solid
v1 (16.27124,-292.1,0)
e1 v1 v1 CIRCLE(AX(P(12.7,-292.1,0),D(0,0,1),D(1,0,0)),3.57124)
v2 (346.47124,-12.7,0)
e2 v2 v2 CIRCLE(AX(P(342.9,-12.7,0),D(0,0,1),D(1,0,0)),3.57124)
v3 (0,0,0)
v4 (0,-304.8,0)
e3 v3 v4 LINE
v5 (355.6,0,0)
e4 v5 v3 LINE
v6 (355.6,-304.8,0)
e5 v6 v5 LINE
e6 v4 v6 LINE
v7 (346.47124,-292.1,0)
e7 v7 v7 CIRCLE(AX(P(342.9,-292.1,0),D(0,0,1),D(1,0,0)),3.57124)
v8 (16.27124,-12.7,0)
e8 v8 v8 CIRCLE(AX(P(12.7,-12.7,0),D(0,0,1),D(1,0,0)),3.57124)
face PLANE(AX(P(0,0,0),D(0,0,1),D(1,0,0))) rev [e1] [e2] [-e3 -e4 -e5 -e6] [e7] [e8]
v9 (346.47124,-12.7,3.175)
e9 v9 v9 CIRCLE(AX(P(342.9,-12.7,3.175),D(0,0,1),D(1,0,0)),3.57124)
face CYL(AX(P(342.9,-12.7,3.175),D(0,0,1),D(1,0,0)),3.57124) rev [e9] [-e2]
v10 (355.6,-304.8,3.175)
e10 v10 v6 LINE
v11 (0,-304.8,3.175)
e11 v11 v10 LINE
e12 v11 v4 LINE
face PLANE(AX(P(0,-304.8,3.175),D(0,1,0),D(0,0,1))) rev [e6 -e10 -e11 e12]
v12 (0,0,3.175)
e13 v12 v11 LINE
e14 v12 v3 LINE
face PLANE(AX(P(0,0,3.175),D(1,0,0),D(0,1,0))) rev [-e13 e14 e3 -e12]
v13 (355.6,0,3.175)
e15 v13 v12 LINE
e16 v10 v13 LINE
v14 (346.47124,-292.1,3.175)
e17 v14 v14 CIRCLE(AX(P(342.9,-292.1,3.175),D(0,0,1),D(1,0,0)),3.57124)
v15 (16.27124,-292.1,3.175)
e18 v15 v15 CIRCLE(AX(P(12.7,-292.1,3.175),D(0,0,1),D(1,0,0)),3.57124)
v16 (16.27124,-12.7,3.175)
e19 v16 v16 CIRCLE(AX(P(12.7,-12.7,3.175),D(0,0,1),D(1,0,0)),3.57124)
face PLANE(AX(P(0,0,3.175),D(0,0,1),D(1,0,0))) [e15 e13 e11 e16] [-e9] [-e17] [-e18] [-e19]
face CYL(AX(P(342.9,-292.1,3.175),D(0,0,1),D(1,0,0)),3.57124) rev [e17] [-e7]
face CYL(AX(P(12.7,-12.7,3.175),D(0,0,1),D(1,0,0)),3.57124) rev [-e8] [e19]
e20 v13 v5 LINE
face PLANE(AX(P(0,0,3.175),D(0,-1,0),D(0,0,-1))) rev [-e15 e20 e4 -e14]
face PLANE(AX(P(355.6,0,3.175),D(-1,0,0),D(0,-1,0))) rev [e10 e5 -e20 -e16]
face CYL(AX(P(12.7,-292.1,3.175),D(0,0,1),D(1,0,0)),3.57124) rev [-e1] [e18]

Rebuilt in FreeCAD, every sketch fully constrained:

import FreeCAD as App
import Part
import Sketcher

V = App.Vector
Q = App.Units.Quantity


def add_polygon(sketch, points):
    """Adds a closed chain of lines whose ends are joined by coincident constraints."""
    first, n = sketch.GeometryCount, len(points)
    for a, b in zip(points, points[1:] + points[:1]):
        sketch.addGeometry(Part.LineSegment(App.Vector(*a, 0), App.Vector(*b, 0)), False)
    for i in range(n):
        sketch.addConstraint(Sketcher.Constraint("Coincident", first + i, 2, first + (i + 1) % n, 1))

doc = App.newDocument("Part")
body = doc.addObject("PartDesign::Body", "Body")

# Sketch on XY plane
sketch1 = body.newObject("Sketcher::SketchObject", "Sketch")
sketch1.AttachmentSupport = (doc.getObject("XY_Plane"), [""])
sketch1.MapMode = "FlatFace"
add_polygon(sketch1, [(0, 0), (0, -304.8), (355.6, -304.8), (355.6, 0)])  # lines 0-3
sketch1.addConstraint([
    Sketcher.Constraint("Vertical", 0),
    Sketcher.Constraint("Horizontal", 1),
    Sketcher.Constraint("Vertical", 2),
    Sketcher.Constraint("Horizontal", 3),
    Sketcher.Constraint("Coincident", 3, 2, -1, 1),
    Sketcher.Constraint("DistanceX", 1, 1, 1, 2, Q("14 in")),
    Sketcher.Constraint("DistanceY", 0, 2, 0, 1, Q("12 in")),
])
pad1 = body.newObject("PartDesign::Pad", "Pad")
pad1.Profile = sketch1
pad1.Length = Q("0.125 in")

# Sketch on XY plane
sketch2 = body.newObject("Sketcher::SketchObject", "Sketch001")
sketch2.AttachmentSupport = (doc.getObject("XY_Plane"), [""])
sketch2.MapMode = "FlatFace"
sketch2.AttachmentOffset = App.Placement(V(0, 0, 0.125 * 25.4), App.Rotation())
sketch2.addGeometry([
    Part.Circle(V(12.7, -12.7, 0), V(0, 0, 1), 3.57124),
    Part.Circle(V(342.9, -12.7, 0), V(0, 0, 1), 3.57124),
    Part.Circle(V(342.9, -292.1, 0), V(0, 0, 1), 3.57124),
    Part.Circle(V(12.7, -292.1, 0), V(0, 0, 1), 3.57124),
], False)
sketch2.addConstraint([
    Sketcher.Constraint("Equal", 0, 1),
    Sketcher.Constraint("Equal", 1, 2),
    Sketcher.Constraint("Equal", 2, 3),
    Sketcher.Constraint("Horizontal", 0, 3, 1, 3),
    Sketcher.Constraint("Horizontal", 2, 3, 3, 3),
    Sketcher.Constraint("Vertical", 1, 3, 2, 3),
    Sketcher.Constraint("Vertical", 0, 3, 3, 3),
    Sketcher.Constraint("DistanceX", 0, 3, 1, 3, Q("13 in")),
    Sketcher.Constraint("DistanceY", 2, 3, 1, 3, Q("11 in")),
    Sketcher.Constraint("Diameter", 0, Q("0.2812 in")),
    Sketcher.Constraint("DistanceX", -1, 1, 0, 3, Q("0.5 in")),
    Sketcher.Constraint("DistanceY", 0, 3, -1, 1, Q("0.5 in")),
])
doc.recompute()
hole = body.newObject("PartDesign::Hole", "Hole")
hole.Profile = sketch2
hole.ThreadType = "None"
hole.Diameter = Q("0.2812 in")
hole.DepthType = "ThroughAll"

doc.recompute()
